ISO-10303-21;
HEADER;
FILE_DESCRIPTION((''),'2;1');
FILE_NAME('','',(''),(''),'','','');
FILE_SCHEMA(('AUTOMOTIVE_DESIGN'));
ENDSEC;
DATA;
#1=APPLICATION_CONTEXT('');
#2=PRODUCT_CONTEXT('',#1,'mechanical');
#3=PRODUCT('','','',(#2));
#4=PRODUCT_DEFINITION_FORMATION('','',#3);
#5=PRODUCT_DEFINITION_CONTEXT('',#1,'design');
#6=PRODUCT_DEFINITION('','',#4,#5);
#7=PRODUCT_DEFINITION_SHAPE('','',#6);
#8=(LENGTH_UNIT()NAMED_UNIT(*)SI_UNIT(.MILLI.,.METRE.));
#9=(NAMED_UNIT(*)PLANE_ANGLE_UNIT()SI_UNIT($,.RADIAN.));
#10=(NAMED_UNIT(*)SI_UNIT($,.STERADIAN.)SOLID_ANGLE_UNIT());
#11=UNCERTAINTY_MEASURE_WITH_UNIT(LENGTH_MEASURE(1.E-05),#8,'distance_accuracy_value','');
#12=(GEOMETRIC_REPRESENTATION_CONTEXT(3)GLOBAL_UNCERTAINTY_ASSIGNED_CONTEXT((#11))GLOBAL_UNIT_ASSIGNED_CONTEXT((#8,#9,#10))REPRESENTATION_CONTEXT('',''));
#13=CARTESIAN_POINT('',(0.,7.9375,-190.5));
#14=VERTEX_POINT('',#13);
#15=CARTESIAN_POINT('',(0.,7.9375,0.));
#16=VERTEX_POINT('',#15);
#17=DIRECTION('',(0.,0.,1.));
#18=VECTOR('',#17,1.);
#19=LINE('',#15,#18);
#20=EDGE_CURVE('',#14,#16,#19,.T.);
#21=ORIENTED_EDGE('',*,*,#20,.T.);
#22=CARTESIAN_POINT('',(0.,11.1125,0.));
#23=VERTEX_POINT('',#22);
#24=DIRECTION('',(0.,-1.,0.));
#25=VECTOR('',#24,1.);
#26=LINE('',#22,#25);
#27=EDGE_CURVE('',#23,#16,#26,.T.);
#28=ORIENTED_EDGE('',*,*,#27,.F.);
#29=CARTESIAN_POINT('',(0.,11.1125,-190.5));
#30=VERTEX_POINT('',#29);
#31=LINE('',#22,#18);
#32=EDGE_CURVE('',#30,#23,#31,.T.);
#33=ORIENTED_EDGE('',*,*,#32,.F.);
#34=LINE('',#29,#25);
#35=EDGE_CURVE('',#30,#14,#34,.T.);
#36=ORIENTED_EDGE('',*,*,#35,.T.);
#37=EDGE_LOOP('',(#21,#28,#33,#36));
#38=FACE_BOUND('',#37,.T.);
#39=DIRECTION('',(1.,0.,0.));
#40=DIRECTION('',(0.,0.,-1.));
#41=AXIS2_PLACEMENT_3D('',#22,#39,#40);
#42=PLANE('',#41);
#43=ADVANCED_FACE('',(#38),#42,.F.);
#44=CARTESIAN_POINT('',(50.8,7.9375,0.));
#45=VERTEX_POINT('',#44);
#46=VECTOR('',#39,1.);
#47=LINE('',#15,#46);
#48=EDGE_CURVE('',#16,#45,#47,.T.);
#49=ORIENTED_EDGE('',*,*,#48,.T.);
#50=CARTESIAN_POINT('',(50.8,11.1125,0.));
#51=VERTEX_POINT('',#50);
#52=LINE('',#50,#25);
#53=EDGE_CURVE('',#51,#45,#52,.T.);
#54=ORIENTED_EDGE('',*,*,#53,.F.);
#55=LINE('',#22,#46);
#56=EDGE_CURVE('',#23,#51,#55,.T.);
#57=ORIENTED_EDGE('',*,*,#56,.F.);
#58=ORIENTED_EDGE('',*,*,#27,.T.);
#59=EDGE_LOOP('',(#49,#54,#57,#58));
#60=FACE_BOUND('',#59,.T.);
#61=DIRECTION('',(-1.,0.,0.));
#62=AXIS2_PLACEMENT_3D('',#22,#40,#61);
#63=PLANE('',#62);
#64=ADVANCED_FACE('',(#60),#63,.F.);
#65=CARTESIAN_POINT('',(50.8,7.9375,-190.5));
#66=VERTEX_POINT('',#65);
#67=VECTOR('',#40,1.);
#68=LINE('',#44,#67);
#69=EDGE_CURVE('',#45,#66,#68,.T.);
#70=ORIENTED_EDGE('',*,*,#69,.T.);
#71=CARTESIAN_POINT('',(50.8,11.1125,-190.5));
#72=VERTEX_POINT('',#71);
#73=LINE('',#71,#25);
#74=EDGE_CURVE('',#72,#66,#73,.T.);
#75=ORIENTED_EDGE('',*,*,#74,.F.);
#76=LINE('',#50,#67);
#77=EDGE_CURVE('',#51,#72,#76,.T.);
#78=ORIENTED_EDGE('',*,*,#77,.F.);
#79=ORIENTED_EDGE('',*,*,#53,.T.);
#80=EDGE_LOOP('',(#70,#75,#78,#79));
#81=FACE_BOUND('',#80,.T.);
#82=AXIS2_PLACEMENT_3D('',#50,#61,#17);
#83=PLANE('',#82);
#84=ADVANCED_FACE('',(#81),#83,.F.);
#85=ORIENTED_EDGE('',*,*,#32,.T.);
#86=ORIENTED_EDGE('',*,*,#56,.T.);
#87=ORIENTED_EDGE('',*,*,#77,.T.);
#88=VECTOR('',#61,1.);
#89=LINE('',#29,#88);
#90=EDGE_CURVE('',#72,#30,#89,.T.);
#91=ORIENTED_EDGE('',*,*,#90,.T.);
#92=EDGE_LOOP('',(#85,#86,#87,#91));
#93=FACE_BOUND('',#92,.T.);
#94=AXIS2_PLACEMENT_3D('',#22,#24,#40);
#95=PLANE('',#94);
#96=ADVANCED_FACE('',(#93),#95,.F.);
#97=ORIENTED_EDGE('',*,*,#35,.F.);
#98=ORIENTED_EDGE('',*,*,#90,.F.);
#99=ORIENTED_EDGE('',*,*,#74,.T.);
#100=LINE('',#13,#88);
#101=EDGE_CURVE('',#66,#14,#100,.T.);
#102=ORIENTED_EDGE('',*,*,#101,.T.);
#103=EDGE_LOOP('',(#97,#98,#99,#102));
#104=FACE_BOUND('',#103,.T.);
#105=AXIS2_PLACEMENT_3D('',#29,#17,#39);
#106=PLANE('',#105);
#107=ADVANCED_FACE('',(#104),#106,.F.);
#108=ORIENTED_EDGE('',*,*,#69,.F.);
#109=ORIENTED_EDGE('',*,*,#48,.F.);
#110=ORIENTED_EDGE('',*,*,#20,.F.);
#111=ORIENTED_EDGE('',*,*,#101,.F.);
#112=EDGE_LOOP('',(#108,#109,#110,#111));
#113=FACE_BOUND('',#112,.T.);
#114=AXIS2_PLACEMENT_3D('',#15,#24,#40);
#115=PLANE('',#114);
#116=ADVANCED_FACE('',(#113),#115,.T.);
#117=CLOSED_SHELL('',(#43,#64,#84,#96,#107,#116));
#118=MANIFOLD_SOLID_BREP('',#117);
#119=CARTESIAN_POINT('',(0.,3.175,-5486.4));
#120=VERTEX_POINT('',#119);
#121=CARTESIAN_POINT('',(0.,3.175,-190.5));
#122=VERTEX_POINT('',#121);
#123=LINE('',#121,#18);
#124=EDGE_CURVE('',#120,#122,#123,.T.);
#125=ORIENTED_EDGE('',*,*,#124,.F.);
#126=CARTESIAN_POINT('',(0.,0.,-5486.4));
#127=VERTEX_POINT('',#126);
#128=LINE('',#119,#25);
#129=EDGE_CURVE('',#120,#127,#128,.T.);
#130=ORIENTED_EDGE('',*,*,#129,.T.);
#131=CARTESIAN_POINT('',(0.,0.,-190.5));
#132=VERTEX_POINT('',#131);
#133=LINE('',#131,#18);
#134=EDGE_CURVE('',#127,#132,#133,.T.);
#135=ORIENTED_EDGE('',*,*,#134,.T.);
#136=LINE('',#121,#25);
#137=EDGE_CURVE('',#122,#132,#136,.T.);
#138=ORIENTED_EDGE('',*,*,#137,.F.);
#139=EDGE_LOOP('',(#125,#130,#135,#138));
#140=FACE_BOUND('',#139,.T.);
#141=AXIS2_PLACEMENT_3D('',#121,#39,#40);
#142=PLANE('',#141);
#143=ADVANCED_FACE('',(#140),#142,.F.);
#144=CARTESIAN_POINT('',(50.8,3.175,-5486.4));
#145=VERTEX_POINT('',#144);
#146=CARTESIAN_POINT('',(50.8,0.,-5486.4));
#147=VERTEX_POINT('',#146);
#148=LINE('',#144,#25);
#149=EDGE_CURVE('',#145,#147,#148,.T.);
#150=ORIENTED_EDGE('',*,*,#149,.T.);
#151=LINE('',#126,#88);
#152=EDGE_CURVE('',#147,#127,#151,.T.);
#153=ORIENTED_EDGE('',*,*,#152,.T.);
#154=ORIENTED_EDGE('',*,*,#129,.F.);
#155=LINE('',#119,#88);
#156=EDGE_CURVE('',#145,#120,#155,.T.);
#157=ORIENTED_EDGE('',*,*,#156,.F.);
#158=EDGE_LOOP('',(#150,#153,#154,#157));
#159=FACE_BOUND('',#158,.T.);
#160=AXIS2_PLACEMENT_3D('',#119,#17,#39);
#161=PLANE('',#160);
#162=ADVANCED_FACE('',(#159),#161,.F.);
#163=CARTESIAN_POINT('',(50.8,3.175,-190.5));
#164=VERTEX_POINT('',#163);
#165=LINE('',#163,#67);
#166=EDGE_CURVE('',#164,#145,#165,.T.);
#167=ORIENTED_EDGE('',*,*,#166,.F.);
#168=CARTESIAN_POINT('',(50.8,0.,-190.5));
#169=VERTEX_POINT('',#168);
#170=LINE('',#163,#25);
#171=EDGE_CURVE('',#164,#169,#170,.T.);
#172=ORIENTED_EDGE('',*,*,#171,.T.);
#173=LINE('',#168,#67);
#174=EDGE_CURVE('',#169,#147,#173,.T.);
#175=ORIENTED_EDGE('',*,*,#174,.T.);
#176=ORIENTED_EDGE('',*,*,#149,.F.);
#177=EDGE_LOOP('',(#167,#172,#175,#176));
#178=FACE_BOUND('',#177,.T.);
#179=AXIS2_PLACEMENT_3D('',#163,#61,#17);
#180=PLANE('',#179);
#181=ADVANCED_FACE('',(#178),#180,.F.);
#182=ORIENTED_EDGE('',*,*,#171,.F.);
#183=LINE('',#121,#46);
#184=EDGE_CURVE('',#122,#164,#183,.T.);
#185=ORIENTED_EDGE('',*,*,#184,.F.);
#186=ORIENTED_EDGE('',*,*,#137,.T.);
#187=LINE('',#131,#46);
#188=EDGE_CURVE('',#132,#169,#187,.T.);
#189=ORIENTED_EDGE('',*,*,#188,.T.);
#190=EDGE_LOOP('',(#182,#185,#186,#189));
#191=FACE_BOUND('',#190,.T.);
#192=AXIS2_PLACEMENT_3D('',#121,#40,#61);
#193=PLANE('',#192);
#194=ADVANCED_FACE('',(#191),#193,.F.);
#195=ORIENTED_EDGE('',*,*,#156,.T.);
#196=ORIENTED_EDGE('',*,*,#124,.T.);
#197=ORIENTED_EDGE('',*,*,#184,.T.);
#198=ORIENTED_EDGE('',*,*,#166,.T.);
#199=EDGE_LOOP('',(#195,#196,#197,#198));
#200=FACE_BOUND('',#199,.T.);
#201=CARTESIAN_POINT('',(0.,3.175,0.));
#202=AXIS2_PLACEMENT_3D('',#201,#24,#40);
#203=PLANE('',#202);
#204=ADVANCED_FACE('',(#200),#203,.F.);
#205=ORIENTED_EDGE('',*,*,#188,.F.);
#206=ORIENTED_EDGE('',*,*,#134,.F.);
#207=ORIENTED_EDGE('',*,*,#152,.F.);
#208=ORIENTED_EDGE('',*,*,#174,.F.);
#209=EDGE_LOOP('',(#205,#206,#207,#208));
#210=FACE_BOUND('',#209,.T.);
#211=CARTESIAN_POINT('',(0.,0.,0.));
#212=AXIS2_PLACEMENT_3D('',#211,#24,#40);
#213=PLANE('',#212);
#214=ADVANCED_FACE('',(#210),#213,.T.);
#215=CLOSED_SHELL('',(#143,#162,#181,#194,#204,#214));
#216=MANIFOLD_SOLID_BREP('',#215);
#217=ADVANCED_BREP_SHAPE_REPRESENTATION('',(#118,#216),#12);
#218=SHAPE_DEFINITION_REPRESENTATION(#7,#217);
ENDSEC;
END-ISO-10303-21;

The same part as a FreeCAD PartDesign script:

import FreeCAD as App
import Part
import Sketcher
from FreeCAD import Vector
Q = App.Units.Quantity


def add_polygon(sketch, points):
    """Adds a closed chain of lines whose ends are joined by coincident constraints."""
    first, n = sketch.GeometryCount, len(points)
    for a, b in zip(points, points[1:] + points[:1]):
        sketch.addGeometry(Part.LineSegment(App.Vector(*a, 0), App.Vector(*b, 0)), False)
    for i in range(n):
        sketch.addConstraint(Sketcher.Constraint("Coincident", first + i, 2, first + (i + 1) % n, 1))

doc = App.newDocument("Part")
params = doc.addObject("Spreadsheet::Sheet", "Params")
for row, (alias, value) in enumerate([
    ("sketch1_width", "2 in"),
    ("sketch1_height", "208.5 in"),
    ("pad1_length", "0.125 in"),
    ("sketch2_width", "2 in"),
    ("sketch2_height", "7.5 in"),
    ("pad2_length", "0.125 in"),
], start=1):
    params.set(f"A{row}", alias)
    params.set(f"B{row}", "=" + value)
    params.setAlias(f"B{row}", alias)

body = doc.addObject("PartDesign::Body", "Body")

sketch1 = doc.addObject("Sketcher::SketchObject", "Sketch")
body.addObject(sketch1)
sketch1.AttachmentSupport = (doc.XZ_Plane, [""])
sketch1.MapMode = "FlatFace"
add_polygon(sketch1, [(0, -5486.4), (0, -190.5), (50.8, -190.5), (50.8, -5486.4)])
sketch1.addConstraint([
    Sketcher.Constraint("Vertical", 0),
    Sketcher.Constraint("Horizontal", 1),
    Sketcher.Constraint("Vertical", 2),
    Sketcher.Constraint("Horizontal", 3),
    Sketcher.Constraint("PointOnObject", 0, 2, -2),
    Sketcher.Constraint("DistanceX", 1, 1, 1, 2, Q("2 in")),
    Sketcher.Constraint("DistanceY", 0, 1, 0, 2, Q("208.5 in")),
    Sketcher.Constraint("DistanceY", 2, 2, -1, 1, Q("216 in")),
])
sketch1.setExpression("Constraints[9]", "Params.sketch1_width")
sketch1.setExpression("Constraints[10]", "Params.sketch1_height")
pad1 = doc.addObject("PartDesign::Pad", "Pad")
body.addObject(pad1)
pad1.Profile = sketch1
pad1.setExpression("Length", "Params.pad1_length")
pad1.Reversed = True
body2 = doc.addObject("PartDesign::Body", "Body001")

sketch2 = doc.addObject("Sketcher::SketchObject", "Sketch001")
body2.addObject(sketch2)
sketch2.AttachmentSupport = (doc.getObject("XZ_Plane001"), [""])
sketch2.MapMode = "FlatFace"
sketch2.AttachmentOffset = App.Placement(Vector(0, 0, -0.3125 * 25.4), App.Rotation())
add_polygon(sketch2, [(0, -190.5), (0, 0), (50.8, 0), (50.8, -190.5)])
sketch2.addConstraint([
    Sketcher.Constraint("Vertical", 0),
    Sketcher.Constraint("Horizontal", 1),
    Sketcher.Constraint("Vertical", 2),
    Sketcher.Constraint("Horizontal", 3),
    Sketcher.Constraint("Coincident", 0, 2, -1, 1),
    Sketcher.Constraint("DistanceX", 1, 1, 1, 2, Q("2 in")),
    Sketcher.Constraint("DistanceY", 0, 1, 0, 2, Q("7.5 in")),
])
sketch2.setExpression("Constraints[9]", "Params.sketch2_width")
sketch2.setExpression("Constraints[10]", "Params.sketch2_height")
pad2 = doc.addObject("PartDesign::Pad", "Pad001")
body2.addObject(pad2)
pad2.Profile = sketch2
pad2.setExpression("Length", "Params.pad2_length")
pad2.Reversed = True

doc.recompute()
